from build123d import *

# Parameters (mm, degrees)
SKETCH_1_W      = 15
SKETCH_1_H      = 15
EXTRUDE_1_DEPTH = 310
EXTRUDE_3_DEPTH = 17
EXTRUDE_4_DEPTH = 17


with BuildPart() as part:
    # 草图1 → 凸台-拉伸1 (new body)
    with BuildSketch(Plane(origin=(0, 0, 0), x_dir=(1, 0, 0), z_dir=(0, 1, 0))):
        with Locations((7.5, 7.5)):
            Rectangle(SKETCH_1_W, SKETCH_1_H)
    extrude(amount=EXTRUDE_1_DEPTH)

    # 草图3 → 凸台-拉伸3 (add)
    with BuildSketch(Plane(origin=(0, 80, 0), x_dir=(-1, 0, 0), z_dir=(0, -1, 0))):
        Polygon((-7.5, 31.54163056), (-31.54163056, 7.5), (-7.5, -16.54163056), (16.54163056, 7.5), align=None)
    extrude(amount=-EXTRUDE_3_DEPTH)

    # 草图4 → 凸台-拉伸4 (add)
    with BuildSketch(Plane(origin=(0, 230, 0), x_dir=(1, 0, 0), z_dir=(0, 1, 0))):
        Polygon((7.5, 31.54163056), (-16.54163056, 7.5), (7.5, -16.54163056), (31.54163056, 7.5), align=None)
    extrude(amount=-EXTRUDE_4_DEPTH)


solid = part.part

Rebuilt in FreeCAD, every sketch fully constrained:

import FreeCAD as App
import Part
import Sketcher

V = App.Vector


def add_polygon(sketch, points):
    """Adds a closed chain of lines whose ends are joined by coincident constraints."""
    first, n = sketch.GeometryCount, len(points)
    for a, b in zip(points, points[1:] + points[:1]):
        sketch.addGeometry(Part.LineSegment(App.Vector(*a, 0), App.Vector(*b, 0)), False)
    for i in range(n):
        sketch.addConstraint(Sketcher.Constraint("Coincident", first + i, 2, first + (i + 1) % n, 1))

doc = App.newDocument("Part")
body = doc.addObject("PartDesign::Body", "Body")

# Sketch on XZ plane
sketch1 = body.newObject("Sketcher::SketchObject", "Sketch")
sketch1.AttachmentSupport = (doc.getObject("XZ_Plane"), [""])
sketch1.MapMode = "FlatFace"
add_polygon(sketch1, [(0, -15), (0, 0), (15, 0), (15, -15)])  # lines 0-3
sketch1.addConstraint(Sketcher.Constraint("Vertical", 0))
sketch1.addConstraint(Sketcher.Constraint("Horizontal", 1))
sketch1.addConstraint(Sketcher.Constraint("Vertical", 2))
sketch1.addConstraint(Sketcher.Constraint("Horizontal", 3))
sketch1.addConstraint(Sketcher.Constraint("Coincident", 0, 2, -1, 1))
sketch1.addConstraint(Sketcher.Constraint("Equal", 3, 0))
sketch1.addConstraint(Sketcher.Constraint("DistanceX", 1, 1, 1, 2, 15.0))
pad1 = body.newObject("PartDesign::Pad", "Pad")
pad1.Profile = sketch1
pad1.Length = 310
pad1.Reversed = True

# Sketch on XZ plane
sketch2 = body.newObject("Sketcher::SketchObject", "Sketch001")
sketch2.AttachmentSupport = (doc.getObject("XZ_Plane"), [""])
sketch2.MapMode = "FlatFace"
sketch2.AttachmentOffset = App.Placement(V(0, 0, -80), App.Rotation())
add_polygon(sketch2, [(8, -32), (32, -8), (8, 17), (-17, -8)])  # lines 0-3
sketch2.addConstraint(Sketcher.Constraint("Perpendicular", 0, 1))
sketch2.addConstraint(Sketcher.Constraint("Perpendicular", 1, 2))
sketch2.addConstraint(Sketcher.Constraint("Perpendicular", 2, 3))
sketch2.addConstraint(Sketcher.Constraint("Horizontal", 0, 2, 2, 2))
sketch2.addConstraint(Sketcher.Constraint("Vertical", 1, 2, 3, 2))
sketch2.addConstraint(Sketcher.Constraint("Distance", 0, 34.0))
sketch2.addConstraint(Sketcher.Constraint("DistanceY", 0, 2, -1, 1, 7.5))
sketch2.addConstraint(Sketcher.Constraint("DistanceX", -1, 1, 1, 2, 7.5))
pad2 = body.newObject("PartDesign::Pad", "Pad001")
pad2.Profile = sketch2
pad2.Length = 17
pad2.Reversed = True

# Sketch on XZ plane
sketch3 = body.newObject("Sketcher::SketchObject", "Sketch002")
sketch3.AttachmentSupport = (doc.getObject("XZ_Plane"), [""])
sketch3.MapMode = "FlatFace"
sketch3.AttachmentOffset = App.Placement(V(0, 0, -230), App.Rotation())
add_polygon(sketch3, [(8, -32), (-17, -8), (8, 17), (32, -8)])  # lines 0-3
sketch3.addConstraint(Sketcher.Constraint("Perpendicular", 0, 1))
sketch3.addConstraint(Sketcher.Constraint("Perpendicular", 1, 2))
sketch3.addConstraint(Sketcher.Constraint("Perpendicular", 2, 3))
sketch3.addConstraint(Sketcher.Constraint("Horizontal", 0, 2, 2, 2))
sketch3.addConstraint(Sketcher.Constraint("Vertical", 1, 2, 3, 2))
sketch3.addConstraint(Sketcher.Constraint("Distance", 0, 34.0))
sketch3.addConstraint(Sketcher.Constraint("DistanceY", 0, 2, -1, 1, 7.5))
sketch3.addConstraint(Sketcher.Constraint("DistanceX", -1, 1, 1, 2, 7.5))
pad3 = body.newObject("PartDesign::Pad", "Pad002")
pad3.Profile = sketch3
pad3.Length = 17

doc.recompute()
